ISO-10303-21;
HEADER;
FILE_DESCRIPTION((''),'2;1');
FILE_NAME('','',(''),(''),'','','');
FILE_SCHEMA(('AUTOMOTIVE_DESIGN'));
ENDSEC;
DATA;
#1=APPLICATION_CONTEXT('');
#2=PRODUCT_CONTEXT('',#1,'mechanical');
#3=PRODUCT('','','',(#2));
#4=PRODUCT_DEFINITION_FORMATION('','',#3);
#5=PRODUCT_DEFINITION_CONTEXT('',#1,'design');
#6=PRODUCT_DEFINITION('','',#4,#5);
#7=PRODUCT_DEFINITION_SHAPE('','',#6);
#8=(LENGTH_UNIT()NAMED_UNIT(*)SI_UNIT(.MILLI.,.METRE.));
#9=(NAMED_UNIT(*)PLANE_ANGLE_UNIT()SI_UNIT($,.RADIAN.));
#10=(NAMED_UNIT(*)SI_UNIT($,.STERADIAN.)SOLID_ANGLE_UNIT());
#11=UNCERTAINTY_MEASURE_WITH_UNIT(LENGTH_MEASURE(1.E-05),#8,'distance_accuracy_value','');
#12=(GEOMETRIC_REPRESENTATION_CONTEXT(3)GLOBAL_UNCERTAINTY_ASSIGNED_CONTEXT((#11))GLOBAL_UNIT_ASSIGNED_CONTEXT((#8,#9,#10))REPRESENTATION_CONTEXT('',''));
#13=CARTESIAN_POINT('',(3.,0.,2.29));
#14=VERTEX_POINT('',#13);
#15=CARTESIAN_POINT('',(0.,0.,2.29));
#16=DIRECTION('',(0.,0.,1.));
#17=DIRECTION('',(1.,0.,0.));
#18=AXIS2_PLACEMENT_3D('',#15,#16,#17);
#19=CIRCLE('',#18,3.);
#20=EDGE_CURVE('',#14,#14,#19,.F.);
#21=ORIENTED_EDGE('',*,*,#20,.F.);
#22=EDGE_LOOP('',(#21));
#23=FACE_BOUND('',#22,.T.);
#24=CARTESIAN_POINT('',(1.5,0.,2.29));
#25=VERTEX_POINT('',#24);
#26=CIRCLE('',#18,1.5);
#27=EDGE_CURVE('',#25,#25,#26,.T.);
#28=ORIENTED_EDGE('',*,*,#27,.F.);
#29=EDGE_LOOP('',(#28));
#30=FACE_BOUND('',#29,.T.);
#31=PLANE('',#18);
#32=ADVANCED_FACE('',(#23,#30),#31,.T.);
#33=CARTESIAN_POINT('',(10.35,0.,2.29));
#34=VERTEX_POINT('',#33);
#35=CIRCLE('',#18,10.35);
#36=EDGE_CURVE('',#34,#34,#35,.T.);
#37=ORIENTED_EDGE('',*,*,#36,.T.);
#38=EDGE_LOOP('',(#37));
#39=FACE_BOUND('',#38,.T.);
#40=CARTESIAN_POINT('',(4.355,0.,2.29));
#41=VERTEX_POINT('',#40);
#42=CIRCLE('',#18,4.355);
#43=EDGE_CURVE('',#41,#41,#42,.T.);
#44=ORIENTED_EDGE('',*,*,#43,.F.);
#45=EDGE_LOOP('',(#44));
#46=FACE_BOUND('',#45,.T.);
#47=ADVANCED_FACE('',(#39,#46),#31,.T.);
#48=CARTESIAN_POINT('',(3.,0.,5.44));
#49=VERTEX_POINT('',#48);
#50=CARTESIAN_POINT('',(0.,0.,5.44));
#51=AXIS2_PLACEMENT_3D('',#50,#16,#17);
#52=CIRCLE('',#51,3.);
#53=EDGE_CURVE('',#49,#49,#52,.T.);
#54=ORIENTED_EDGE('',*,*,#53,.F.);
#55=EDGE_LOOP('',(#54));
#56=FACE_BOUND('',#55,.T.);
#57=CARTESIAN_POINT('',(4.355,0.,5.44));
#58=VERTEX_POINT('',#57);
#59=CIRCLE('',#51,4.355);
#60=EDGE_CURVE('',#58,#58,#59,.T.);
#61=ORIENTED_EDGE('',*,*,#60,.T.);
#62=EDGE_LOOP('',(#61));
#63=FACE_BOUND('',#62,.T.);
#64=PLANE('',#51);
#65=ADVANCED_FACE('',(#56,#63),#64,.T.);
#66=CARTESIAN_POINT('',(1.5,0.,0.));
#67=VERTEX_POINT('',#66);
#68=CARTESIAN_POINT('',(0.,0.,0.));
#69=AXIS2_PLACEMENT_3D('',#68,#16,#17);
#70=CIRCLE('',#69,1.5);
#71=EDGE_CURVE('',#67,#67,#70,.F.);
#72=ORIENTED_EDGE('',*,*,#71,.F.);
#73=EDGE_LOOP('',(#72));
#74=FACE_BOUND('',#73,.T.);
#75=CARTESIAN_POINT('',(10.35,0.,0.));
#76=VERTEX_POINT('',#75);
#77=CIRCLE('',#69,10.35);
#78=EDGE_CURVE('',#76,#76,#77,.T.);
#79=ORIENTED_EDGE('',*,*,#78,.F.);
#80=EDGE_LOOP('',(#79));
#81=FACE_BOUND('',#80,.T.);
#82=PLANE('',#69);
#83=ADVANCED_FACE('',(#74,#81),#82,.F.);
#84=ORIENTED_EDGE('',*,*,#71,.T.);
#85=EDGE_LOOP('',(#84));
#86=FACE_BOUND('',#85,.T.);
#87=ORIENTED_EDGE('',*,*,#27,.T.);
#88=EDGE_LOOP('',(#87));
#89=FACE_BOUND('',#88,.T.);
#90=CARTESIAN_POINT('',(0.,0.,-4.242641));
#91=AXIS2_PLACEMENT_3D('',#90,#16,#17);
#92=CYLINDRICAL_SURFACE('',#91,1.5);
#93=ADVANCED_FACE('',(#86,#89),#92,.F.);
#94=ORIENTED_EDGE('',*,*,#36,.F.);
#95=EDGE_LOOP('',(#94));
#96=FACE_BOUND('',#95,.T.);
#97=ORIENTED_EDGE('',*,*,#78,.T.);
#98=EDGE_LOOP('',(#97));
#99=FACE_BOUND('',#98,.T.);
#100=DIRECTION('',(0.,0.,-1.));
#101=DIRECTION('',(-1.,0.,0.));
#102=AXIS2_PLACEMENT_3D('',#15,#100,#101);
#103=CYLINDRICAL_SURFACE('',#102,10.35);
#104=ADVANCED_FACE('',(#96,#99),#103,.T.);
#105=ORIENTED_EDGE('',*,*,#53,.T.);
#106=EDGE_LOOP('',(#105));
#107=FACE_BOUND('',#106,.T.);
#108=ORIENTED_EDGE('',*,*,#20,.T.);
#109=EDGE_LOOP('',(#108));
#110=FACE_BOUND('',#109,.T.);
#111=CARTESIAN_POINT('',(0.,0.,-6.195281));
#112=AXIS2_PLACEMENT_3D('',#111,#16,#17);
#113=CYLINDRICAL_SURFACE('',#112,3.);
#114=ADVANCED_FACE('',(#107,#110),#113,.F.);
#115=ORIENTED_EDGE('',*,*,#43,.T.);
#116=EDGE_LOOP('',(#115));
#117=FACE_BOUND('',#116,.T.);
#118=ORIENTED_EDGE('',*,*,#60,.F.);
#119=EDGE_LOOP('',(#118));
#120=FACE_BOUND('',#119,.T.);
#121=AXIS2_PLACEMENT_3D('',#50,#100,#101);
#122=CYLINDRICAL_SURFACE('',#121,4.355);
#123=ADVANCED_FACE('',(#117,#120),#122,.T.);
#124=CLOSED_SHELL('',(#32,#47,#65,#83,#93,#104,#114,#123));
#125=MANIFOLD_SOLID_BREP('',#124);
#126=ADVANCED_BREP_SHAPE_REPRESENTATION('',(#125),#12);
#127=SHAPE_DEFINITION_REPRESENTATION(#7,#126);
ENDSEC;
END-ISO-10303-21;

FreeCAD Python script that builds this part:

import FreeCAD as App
import Part
import Sketcher
Q = App.Units.Quantity

doc = App.newDocument("Part")
body = doc.addObject("PartDesign::Body", "Body")

# Sketch on XY plane
sketch1 = body.newObject("Sketcher::SketchObject", "Sketch")
sketch1.AttachmentSupport = (doc.getObject("XY_Plane"), [""])
sketch1.MapMode = "FlatFace"
sketch1.addGeometry(Part.Circle(App.Vector(0, 0, 0), App.Vector(0, 0, 1), 10), False)
sketch1.addConstraint(Sketcher.Constraint("Coincident", 0, 3, -1, 1))
sketch1.addConstraint(Sketcher.Constraint("Diameter", 0, Q("20.7 mm")))
pad1 = body.newObject("PartDesign::Pad", "Pad")
pad1.Profile = sketch1
pad1.Length = 2.29

# Sketch on XY plane
sketch2 = body.newObject("Sketcher::SketchObject", "Sketch001")
sketch2.AttachmentSupport = (doc.getObject("XY_Plane"), [""])
sketch2.MapMode = "FlatFace"
sketch2.AttachmentOffset = App.Placement(App.Vector(0, 0, 2.29), App.Rotation())
sketch2.addGeometry(Part.Circle(App.Vector(0, 0, 0), App.Vector(0, 0, 1), 4.4), False)
sketch2.addConstraint(Sketcher.Constraint("Coincident", 0, 3, -1, 1))
sketch2.addConstraint(Sketcher.Constraint("Diameter", 0, Q("8.71 mm")))
pad2 = body.newObject("PartDesign::Pad", "Pad001")
pad2.Profile = sketch2
pad2.Length = 3.15

# Sketch on XY plane
sketch3 = body.newObject("Sketcher::SketchObject", "Sketch002")
sketch3.AttachmentSupport = (doc.getObject("XY_Plane"), [""])
sketch3.MapMode = "FlatFace"
sketch3.AttachmentOffset = App.Placement(App.Vector(0, 0, 5.44), App.Rotation())
sketch3.addGeometry(Part.Circle(App.Vector(0, 0, 0), App.Vector(0, 0, 1), 3), False)
sketch3.addConstraint(Sketcher.Constraint("Coincident", 0, 3, -1, 1))
sketch3.addConstraint(Sketcher.Constraint("Diameter", 0, Q("6 mm")))
pocket1 = body.newObject("PartDesign::Pocket", "Pocket")
pocket1.Profile = sketch3
pocket1.Length = 3.15

# Sketch on XY plane
sketch4 = body.newObject("Sketcher::SketchObject", "Sketch003")
sketch4.AttachmentSupport = (doc.getObject("XY_Plane"), [""])
sketch4.MapMode = "FlatFace"
sketch4.AttachmentOffset = App.Placement(App.Vector(0, 0, 2.29), App.Rotation())
sketch4.addGeometry(Part.Circle(App.Vector(0, 0, 0), App.Vector(0, 0, 1), 1.5), False)
sketch4.addConstraint(Sketcher.Constraint("Coincident", 0, 3, -1, 1))
sketch4.addConstraint(Sketcher.Constraint("Diameter", 0, Q("3 mm")))
pocket2 = body.newObject("PartDesign::Pocket", "Pocket001")
pocket2.Profile = sketch4
pocket2.Length = 2.29

doc.recompute()
